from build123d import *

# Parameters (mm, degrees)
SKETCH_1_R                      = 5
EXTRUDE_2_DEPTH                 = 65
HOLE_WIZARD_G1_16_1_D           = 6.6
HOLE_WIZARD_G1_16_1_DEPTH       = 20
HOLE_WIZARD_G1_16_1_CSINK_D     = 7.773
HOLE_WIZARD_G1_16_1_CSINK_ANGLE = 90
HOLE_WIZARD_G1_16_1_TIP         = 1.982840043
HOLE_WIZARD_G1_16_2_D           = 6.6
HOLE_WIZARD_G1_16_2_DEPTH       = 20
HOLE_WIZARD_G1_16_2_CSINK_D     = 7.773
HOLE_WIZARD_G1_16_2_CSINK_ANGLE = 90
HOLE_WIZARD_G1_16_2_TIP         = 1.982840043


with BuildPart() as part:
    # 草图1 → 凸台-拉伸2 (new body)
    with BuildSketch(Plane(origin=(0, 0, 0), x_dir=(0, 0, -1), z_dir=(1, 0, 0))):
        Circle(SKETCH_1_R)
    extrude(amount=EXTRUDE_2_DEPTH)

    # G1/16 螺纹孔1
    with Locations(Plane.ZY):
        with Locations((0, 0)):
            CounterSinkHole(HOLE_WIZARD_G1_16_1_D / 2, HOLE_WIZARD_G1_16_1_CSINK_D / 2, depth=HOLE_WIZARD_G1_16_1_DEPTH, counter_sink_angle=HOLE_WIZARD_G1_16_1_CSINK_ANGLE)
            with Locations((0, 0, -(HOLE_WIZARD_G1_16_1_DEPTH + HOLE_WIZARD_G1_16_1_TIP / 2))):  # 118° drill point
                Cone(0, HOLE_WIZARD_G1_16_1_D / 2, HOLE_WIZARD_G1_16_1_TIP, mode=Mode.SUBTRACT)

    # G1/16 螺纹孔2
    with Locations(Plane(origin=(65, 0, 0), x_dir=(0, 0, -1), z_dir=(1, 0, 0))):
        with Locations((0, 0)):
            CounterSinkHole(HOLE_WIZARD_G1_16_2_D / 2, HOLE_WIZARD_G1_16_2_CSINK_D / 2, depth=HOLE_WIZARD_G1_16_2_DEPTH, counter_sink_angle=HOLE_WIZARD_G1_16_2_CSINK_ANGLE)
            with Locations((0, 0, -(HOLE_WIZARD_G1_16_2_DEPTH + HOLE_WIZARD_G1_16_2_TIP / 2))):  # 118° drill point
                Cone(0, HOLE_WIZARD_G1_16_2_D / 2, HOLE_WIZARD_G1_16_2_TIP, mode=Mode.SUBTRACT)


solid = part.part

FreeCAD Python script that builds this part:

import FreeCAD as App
import Part
import Sketcher
from FreeCAD import Vector

doc = App.newDocument("Part")
body = doc.addObject("PartDesign::Body", "Body")

# Sketch on YZ plane
sketch1 = body.newObject("Sketcher::SketchObject", "Sketch")
sketch1.AttachmentSupport = (doc.getObject("YZ_Plane"), [""])
sketch1.MapMode = "FlatFace"
sketch1.addGeometry(Part.Circle(Vector(0, 0, 0), Vector(0, 0, 1), 5), False)
sketch1.addConstraint(Sketcher.Constraint("Coincident", 0, 3, -1, 1))
sketch1.addConstraint(Sketcher.Constraint("Diameter", 0, 10.0))
pad1 = body.newObject("PartDesign::Pad", "Pad")
pad1.Profile = sketch1
pad1.Length = 65

# Sketch on YZ plane
sketch2 = body.newObject("Sketcher::SketchObject", "Sketch001")
sketch2.AttachmentSupport = (doc.getObject("YZ_Plane"), [""])
sketch2.MapMode = "FlatFace"
sketch2.addGeometry(Part.Circle(Vector(0, 0, 0), Vector(0, 0, 1), 3.3), False)
sketch2.addConstraint(Sketcher.Constraint("Coincident", 0, 3, -1, 1))
sketch2.addConstraint(Sketcher.Constraint("Diameter", 0, 6.6))
doc.recompute()
hole = body.newObject("PartDesign::Hole", "Hole")
hole.Profile = sketch2
hole.ThreadType = "None"
hole.Diameter = 6.6
hole.DepthType = "Dimension"
hole.Depth = 20
hole.DrillPoint = "Angled"
hole.DrillPointAngle = 118
hole.HoleCutType = "Countersink"
hole.HoleCutDiameter = 7.773
hole.HoleCutCountersinkAngle = 90
hole.Reversed = True

# Sketch on YZ plane
sketch3 = body.newObject("Sketcher::SketchObject", "Sketch002")
sketch3.AttachmentSupport = (doc.getObject("YZ_Plane"), [""])
sketch3.MapMode = "FlatFace"
sketch3.AttachmentOffset = App.Placement(Vector(0, 0, 65), App.Rotation())
sketch3.addGeometry(Part.Circle(Vector(0, 0, 0), Vector(0, 0, 1), 3.3), False)
sketch3.addConstraint(Sketcher.Constraint("Coincident", 0, 3, -1, 1))
sketch3.addConstraint(Sketcher.Constraint("Diameter", 0, 6.6))
doc.recompute()
hole2 = body.newObject("PartDesign::Hole", "Hole001")
hole2.Profile = sketch3
hole2.ThreadType = "None"
hole2.Diameter = 6.6
hole2.DepthType = "Dimension"
hole2.Depth = 20
hole2.DrillPoint = "Angled"
hole2.DrillPointAngle = 118
hole2.HoleCutType = "Countersink"
hole2.HoleCutDiameter = 7.773
hole2.HoleCutCountersinkAngle = 90

doc.recompute()
